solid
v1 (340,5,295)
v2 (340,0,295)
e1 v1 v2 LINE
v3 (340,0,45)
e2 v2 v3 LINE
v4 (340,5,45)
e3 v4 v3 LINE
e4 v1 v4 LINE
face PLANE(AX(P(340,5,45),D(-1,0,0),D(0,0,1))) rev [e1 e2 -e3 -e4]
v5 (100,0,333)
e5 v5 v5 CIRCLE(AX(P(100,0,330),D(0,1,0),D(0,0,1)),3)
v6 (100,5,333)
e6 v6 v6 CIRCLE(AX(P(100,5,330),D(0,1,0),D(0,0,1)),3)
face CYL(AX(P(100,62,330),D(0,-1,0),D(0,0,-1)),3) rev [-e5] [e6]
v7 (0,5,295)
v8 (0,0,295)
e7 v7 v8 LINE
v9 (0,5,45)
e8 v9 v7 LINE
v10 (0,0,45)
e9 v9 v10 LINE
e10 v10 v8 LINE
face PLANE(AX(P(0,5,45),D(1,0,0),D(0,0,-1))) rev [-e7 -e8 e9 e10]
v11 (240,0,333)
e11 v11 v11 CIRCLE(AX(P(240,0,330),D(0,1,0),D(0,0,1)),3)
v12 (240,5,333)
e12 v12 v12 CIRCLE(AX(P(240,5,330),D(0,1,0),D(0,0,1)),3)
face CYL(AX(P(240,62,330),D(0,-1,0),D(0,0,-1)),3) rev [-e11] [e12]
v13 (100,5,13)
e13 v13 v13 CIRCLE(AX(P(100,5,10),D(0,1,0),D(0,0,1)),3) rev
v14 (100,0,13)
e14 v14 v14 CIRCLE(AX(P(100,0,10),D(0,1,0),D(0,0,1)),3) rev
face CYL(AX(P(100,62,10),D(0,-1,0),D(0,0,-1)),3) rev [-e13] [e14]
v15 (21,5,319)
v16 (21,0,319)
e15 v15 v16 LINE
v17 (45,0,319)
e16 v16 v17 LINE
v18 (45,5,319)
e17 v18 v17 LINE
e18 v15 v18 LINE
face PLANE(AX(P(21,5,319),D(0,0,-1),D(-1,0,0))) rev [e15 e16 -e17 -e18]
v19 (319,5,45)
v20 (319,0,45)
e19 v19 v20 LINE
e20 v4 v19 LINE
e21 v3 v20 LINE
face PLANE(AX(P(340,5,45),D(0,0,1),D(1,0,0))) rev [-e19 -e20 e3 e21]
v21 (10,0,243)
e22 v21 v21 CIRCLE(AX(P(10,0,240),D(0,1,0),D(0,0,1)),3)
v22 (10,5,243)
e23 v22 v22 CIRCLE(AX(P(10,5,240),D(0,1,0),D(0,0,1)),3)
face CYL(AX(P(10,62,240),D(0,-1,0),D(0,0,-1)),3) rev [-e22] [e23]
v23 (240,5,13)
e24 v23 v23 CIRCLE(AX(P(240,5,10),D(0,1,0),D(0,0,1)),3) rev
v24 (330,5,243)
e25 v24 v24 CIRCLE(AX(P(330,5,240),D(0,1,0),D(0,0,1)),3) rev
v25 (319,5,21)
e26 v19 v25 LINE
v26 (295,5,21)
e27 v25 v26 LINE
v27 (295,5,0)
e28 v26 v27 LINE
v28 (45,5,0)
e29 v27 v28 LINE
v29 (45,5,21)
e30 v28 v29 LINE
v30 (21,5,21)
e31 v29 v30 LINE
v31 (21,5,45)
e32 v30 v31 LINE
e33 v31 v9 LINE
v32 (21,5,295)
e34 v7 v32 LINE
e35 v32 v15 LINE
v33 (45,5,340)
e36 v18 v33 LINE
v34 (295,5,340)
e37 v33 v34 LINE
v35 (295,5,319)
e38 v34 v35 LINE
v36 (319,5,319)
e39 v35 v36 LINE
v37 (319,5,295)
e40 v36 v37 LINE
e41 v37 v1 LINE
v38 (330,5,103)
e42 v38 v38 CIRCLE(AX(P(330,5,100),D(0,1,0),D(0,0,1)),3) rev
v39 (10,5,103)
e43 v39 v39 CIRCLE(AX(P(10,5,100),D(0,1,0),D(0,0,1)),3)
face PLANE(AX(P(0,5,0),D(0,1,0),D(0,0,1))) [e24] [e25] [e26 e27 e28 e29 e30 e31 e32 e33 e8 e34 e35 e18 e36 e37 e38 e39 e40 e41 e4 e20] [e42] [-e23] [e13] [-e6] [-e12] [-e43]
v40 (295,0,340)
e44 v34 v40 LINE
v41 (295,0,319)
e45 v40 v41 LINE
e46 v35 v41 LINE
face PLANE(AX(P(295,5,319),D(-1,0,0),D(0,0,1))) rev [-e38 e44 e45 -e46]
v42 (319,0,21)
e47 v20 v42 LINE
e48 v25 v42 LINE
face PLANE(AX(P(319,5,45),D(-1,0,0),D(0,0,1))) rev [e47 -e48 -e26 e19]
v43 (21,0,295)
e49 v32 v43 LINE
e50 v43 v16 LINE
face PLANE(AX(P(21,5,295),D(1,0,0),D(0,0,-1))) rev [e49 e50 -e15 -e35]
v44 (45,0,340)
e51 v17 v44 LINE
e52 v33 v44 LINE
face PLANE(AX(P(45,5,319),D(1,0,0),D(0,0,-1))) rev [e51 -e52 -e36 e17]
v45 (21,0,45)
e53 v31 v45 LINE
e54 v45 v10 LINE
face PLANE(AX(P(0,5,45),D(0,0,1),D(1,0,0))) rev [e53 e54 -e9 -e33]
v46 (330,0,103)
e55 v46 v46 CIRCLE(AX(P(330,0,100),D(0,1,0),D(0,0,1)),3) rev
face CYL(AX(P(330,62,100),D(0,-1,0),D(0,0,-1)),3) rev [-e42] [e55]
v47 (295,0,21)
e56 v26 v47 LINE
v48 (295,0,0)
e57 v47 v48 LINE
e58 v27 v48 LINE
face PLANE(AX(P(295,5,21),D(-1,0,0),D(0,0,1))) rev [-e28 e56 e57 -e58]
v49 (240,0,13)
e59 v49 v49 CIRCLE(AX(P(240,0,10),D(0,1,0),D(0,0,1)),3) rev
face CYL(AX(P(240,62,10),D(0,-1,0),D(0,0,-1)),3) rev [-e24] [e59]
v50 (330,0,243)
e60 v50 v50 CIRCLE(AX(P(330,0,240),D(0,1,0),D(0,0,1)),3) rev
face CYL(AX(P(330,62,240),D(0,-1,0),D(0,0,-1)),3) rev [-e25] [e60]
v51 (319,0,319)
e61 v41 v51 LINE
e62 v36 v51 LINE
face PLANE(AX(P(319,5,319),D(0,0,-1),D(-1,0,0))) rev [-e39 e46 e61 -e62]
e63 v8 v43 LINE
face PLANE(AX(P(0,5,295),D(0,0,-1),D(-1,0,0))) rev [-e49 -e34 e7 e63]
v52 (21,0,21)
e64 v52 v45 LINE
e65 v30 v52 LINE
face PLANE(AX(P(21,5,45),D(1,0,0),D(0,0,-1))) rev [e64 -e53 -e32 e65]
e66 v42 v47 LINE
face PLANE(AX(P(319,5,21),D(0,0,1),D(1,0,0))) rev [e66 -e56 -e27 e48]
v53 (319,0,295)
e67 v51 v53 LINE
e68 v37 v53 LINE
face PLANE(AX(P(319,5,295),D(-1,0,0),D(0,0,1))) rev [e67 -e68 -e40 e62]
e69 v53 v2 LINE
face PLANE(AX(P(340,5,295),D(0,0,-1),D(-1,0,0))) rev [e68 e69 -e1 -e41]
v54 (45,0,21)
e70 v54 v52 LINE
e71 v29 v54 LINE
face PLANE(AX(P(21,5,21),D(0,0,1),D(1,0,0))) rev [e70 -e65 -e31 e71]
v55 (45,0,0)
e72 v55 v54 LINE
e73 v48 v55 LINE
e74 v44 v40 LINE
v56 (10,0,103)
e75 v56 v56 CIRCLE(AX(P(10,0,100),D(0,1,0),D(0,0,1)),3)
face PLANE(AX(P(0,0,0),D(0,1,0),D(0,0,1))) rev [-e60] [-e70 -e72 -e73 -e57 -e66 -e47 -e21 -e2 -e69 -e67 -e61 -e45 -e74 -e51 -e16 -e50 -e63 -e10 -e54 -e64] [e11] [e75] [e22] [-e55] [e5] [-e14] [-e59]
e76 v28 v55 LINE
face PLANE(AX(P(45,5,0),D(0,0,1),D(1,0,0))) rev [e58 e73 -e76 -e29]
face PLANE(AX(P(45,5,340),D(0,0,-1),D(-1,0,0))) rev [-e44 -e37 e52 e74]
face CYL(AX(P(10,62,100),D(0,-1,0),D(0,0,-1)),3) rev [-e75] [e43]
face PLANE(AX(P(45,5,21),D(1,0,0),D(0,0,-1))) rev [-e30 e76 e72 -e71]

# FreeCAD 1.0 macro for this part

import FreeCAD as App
import Part
import Sketcher

doc = App.newDocument("Part")
params = doc.addObject("Spreadsheet::Sheet", "Params")
for row, (alias, value) in enumerate([
    ("sketch1_width", "21 mm"),
    ("sketch1_width2", "24 mm"),
    ("sketch1_width3", "250 mm"),
    ("pad1_length", "5 mm"),
    ("sketch2_diameter", "6 mm"),
], start=1):
    params.set(f"A{row}", alias)
    params.set(f"B{row}", "=" + value)
    params.setAlias(f"B{row}", alias)

body = doc.addObject("PartDesign::Body", "Body")

# Sketch on XZ plane
sketch1 = body.newObject("Sketcher::SketchObject", "Sketch")
sketch1.AttachmentSupport = (doc.getObject("XZ_Plane"), [""])
sketch1.MapMode = "FlatFace"
sketch1.addGeometry(Part.LineSegment(App.Vector(21, 45, 0), App.Vector(0, 45, 0)), False)
sketch1.addGeometry(Part.LineSegment(App.Vector(0, 45, 0), App.Vector(0, 295, 0)), False)
sketch1.addGeometry(Part.LineSegment(App.Vector(0, 295, 0), App.Vector(21, 295, 0)), False)
sketch1.addGeometry(Part.LineSegment(App.Vector(21, 295, 0), App.Vector(21, 319, 0)), False)
sketch1.addGeometry(Part.LineSegment(App.Vector(21, 319, 0), App.Vector(45, 319, 0)), False)
sketch1.addGeometry(Part.LineSegment(App.Vector(45, 319, 0), App.Vector(45, 340, 0)), False)
sketch1.addGeometry(Part.LineSegment(App.Vector(45, 340, 0), App.Vector(295, 340, 0)), False)
sketch1.addGeometry(Part.LineSegment(App.Vector(295, 340, 0), App.Vector(295, 319, 0)), False)
sketch1.addGeometry(Part.LineSegment(App.Vector(295, 319, 0), App.Vector(319, 319, 0)), False)
sketch1.addGeometry(Part.LineSegment(App.Vector(319, 319, 0), App.Vector(319, 295, 0)), False)
sketch1.addGeometry(Part.LineSegment(App.Vector(319, 295, 0), App.Vector(340, 295, 0)), False)
sketch1.addGeometry(Part.LineSegment(App.Vector(340, 295, 0), App.Vector(340, 45, 0)), False)
sketch1.addGeometry(Part.LineSegment(App.Vector(340, 45, 0), App.Vector(319, 45, 0)), False)
sketch1.addGeometry(Part.LineSegment(App.Vector(319, 45, 0), App.Vector(319, 21, 0)), False)
sketch1.addGeometry(Part.LineSegment(App.Vector(319, 21, 0), App.Vector(295, 21, 0)), False)
sketch1.addGeometry(Part.LineSegment(App.Vector(295, 21, 0), App.Vector(295, 0, 0)), False)
sketch1.addGeometry(Part.LineSegment(App.Vector(295, 0, 0), App.Vector(45, 0, 0)), False)
sketch1.addGeometry(Part.LineSegment(App.Vector(45, 0, 0), App.Vector(45, 21, 0)), False)
sketch1.addGeometry(Part.LineSegment(App.Vector(45, 21, 0), App.Vector(21, 21, 0)), False)
sketch1.addGeometry(Part.LineSegment(App.Vector(21, 21, 0), App.Vector(21, 45, 0)), False)
sketch1.addConstraint(Sketcher.Constraint("Coincident", 0, 2, 1, 1))
sketch1.addConstraint(Sketcher.Constraint("Coincident", 1, 2, 2, 1))
sketch1.addConstraint(Sketcher.Constraint("Coincident", 2, 2, 3, 1))
sketch1.addConstraint(Sketcher.Constraint("Coincident", 3, 2, 4, 1))
sketch1.addConstraint(Sketcher.Constraint("Coincident", 4, 2, 5, 1))
sketch1.addConstraint(Sketcher.Constraint("Coincident", 5, 2, 6, 1))
sketch1.addConstraint(Sketcher.Constraint("Coincident", 6, 2, 7, 1))
sketch1.addConstraint(Sketcher.Constraint("Coincident", 7, 2, 8, 1))
sketch1.addConstraint(Sketcher.Constraint("Coincident", 8, 2, 9, 1))
sketch1.addConstraint(Sketcher.Constraint("Coincident", 9, 2, 10, 1))
sketch1.addConstraint(Sketcher.Constraint("Coincident", 10, 2, 11, 1))
sketch1.addConstraint(Sketcher.Constraint("Coincident", 11, 2, 12, 1))
sketch1.addConstraint(Sketcher.Constraint("Coincident", 12, 2, 13, 1))
sketch1.addConstraint(Sketcher.Constraint("Coincident", 13, 2, 14, 1))
sketch1.addConstraint(Sketcher.Constraint("Coincident", 14, 2, 15, 1))
sketch1.addConstraint(Sketcher.Constraint("Coincident", 15, 2, 16, 1))
sketch1.addConstraint(Sketcher.Constraint("Coincident", 16, 2, 17, 1))
sketch1.addConstraint(Sketcher.Constraint("Coincident", 17, 2, 18, 1))
sketch1.addConstraint(Sketcher.Constraint("Coincident", 18, 2, 19, 1))
sketch1.addConstraint(Sketcher.Constraint("Coincident", 19, 2, 0, 1))
sketch1.addConstraint(Sketcher.Constraint("Horizontal", 0))
sketch1.addConstraint(Sketcher.Constraint("Vertical", 1))
sketch1.addConstraint(Sketcher.Constraint("Horizontal", 2))
sketch1.addConstraint(Sketcher.Constraint("Vertical", 3))
sketch1.addConstraint(Sketcher.Constraint("Horizontal", 4))
sketch1.addConstraint(Sketcher.Constraint("Vertical", 5))
sketch1.addConstraint(Sketcher.Constraint("Horizontal", 6))
sketch1.addConstraint(Sketcher.Constraint("Vertical", 7))
sketch1.addConstraint(Sketcher.Constraint("Horizontal", 8))
sketch1.addConstraint(Sketcher.Constraint("Vertical", 9))
sketch1.addConstraint(Sketcher.Constraint("Horizontal", 10))
sketch1.addConstraint(Sketcher.Constraint("Vertical", 11))
sketch1.addConstraint(Sketcher.Constraint("Horizontal", 12))
sketch1.addConstraint(Sketcher.Constraint("Vertical", 13))
sketch1.addConstraint(Sketcher.Constraint("Horizontal", 14))
sketch1.addConstraint(Sketcher.Constraint("Vertical", 15))
sketch1.addConstraint(Sketcher.Constraint("Horizontal", 16))
sketch1.addConstraint(Sketcher.Constraint("Vertical", 17))
sketch1.addConstraint(Sketcher.Constraint("Horizontal", 18))
sketch1.addConstraint(Sketcher.Constraint("Vertical", 19))
sketch1.addConstraint(Sketcher.Constraint("PointOnObject", 0, 2, -2))
sketch1.addConstraint(Sketcher.Constraint("PointOnObject", 15, 2, -1))
sketch1.addConstraint(Sketcher.Constraint("Horizontal", 4, 2, 7, 2))
sketch1.addConstraint(Sketcher.Constraint("Horizontal", 2, 2, 9, 2))
sketch1.addConstraint(Sketcher.Constraint("Horizontal", 0, 2, 11, 2))
sketch1.addConstraint(Sketcher.Constraint("Horizontal", 14, 2, 17, 2))
sketch1.addConstraint(Sketcher.Constraint("Vertical", 9, 2, 12, 2))
sketch1.addConstraint(Sketcher.Constraint("Vertical", 7, 2, 14, 2))
sketch1.addConstraint(Sketcher.Constraint("Vertical", 5, 2, 16, 2))
sketch1.addConstraint(Sketcher.Constraint("Vertical", 3, 2, 18, 2))
sketch1.addConstraint(Sketcher.Constraint("Equal", 4, 8))
sketch1.addConstraint(Sketcher.Constraint("Equal", 2, 10))
sketch1.addConstraint(Sketcher.Constraint("Equal", 16, 1))
sketch1.addConstraint(Sketcher.Constraint("Equal", 18, 3))
sketch1.addConstraint(Sketcher.Constraint("Equal", 12, 5))
sketch1.addConstraint(Sketcher.Constraint("Equal", 9, 13))
sketch1.addConstraint(Sketcher.Constraint("Equal", 7, 15))
sketch1.addConstraint(Sketcher.Constraint("DistanceX", 0, 2, 0, 1, 21.0))
sketch1.addConstraint(Sketcher.Constraint("DistanceX", 4, 1, 4, 2, 24.0))
sketch1.addConstraint(Sketcher.Constraint("DistanceX", 6, 1, 6, 2, 250.0))
sketch1.setExpression("Constraints[57]", "Params.sketch1_width")
sketch1.setExpression("Constraints[58]", "Params.sketch1_width2")
sketch1.setExpression("Constraints[59]", "Params.sketch1_width3")
pad1 = body.newObject("PartDesign::Pad", "Pad")
pad1.Profile = sketch1
pad1.setExpression("Length", "Params.pad1_length")
pad1.Reversed = True

# Sketch on XZ plane
sketch2 = body.newObject("Sketcher::SketchObject", "Sketch001")
sketch2.AttachmentSupport = (doc.getObject("XZ_Plane"), [""])
sketch2.MapMode = "FlatFace"
sketch2.AttachmentOffset = App.Placement(App.Vector(0, 0, -5), App.Rotation())
sketch2.addGeometry(Part.Circle(App.Vector(100, 10, 0), App.Vector(0, 0, 1), 3), False)
sketch2.addGeometry(Part.Circle(App.Vector(240, 10, 0), App.Vector(0, 0, 1), 3), False)
sketch2.addGeometry(Part.Circle(App.Vector(240, 330, 0), App.Vector(0, 0, 1), 3), False)
sketch2.addGeometry(Part.Circle(App.Vector(100, 330, 0), App.Vector(0, 0, 1), 3), False)
sketch2.addGeometry(Part.Circle(App.Vector(10, 240, 0), App.Vector(0, 0, 1), 3), False)
sketch2.addGeometry(Part.Circle(App.Vector(10, 100, 0), App.Vector(0, 0, 1), 3), False)
sketch2.addGeometry(Part.Circle(App.Vector(330, 240, 0), App.Vector(0, 0, 1), 3), False)
sketch2.addGeometry(Part.Circle(App.Vector(330, 100, 0), App.Vector(0, 0, 1), 3), False)
sketch2.addConstraint(Sketcher.Constraint("Equal", 0, 1))
sketch2.addConstraint(Sketcher.Constraint("Equal", 1, 2))
sketch2.addConstraint(Sketcher.Constraint("Equal", 2, 3))
sketch2.addConstraint(Sketcher.Constraint("Equal", 3, 4))
sketch2.addConstraint(Sketcher.Constraint("Equal", 4, 5))
sketch2.addConstraint(Sketcher.Constraint("Equal", 5, 6))
sketch2.addConstraint(Sketcher.Constraint("Equal", 6, 7))
sketch2.addConstraint(Sketcher.Constraint("Horizontal", 0, 3, 1, 3))
sketch2.addConstraint(Sketcher.Constraint("Horizontal", 2, 3, 3, 3))
sketch2.addConstraint(Sketcher.Constraint("Horizontal", 4, 3, 6, 3))
sketch2.addConstraint(Sketcher.Constraint("Horizontal", 5, 3, 7, 3))
sketch2.addConstraint(Sketcher.Constraint("Vertical", 1, 3, 2, 3))
sketch2.addConstraint(Sketcher.Constraint("Vertical", 0, 3, 3, 3))
sketch2.addConstraint(Sketcher.Constraint("Vertical", 4, 3, 5, 3))
sketch2.addConstraint(Sketcher.Constraint("Vertical", 6, 3, 7, 3))
sketch2.addConstraint(Sketcher.Constraint("Diameter", 0, 6.0))
sketch2.addConstraint(Sketcher.Constraint("DistanceX", -1, 1, 0, 3, 100.0))
sketch2.addConstraint(Sketcher.Constraint("DistanceY", -1, 1, 0, 3, 10.0))
sketch2.addConstraint(Sketcher.Constraint("DistanceX", -1, 1, 1, 3, 240.0))
sketch2.addConstraint(Sketcher.Constraint("DistanceY", -1, 1, 2, 3, 330.0))
sketch2.addConstraint(Sketcher.Constraint("DistanceX", -1, 1, 4, 3, 10.0))
sketch2.addConstraint(Sketcher.Constraint("DistanceY", -1, 1, 4, 3, 240.0))
sketch2.addConstraint(Sketcher.Constraint("DistanceY", -1, 1, 5, 3, 100.0))
sketch2.addConstraint(Sketcher.Constraint("DistanceX", -1, 1, 6, 3, 330.0))
sketch2.setExpression("Constraints[15]", "Params.sketch2_diameter")
pocket1 = body.newObject("PartDesign::Pocket", "Pocket")
pocket1.Profile = sketch2
pocket1.Type = "ThroughAll"
pocket1.Midplane = True

doc.recompute()
